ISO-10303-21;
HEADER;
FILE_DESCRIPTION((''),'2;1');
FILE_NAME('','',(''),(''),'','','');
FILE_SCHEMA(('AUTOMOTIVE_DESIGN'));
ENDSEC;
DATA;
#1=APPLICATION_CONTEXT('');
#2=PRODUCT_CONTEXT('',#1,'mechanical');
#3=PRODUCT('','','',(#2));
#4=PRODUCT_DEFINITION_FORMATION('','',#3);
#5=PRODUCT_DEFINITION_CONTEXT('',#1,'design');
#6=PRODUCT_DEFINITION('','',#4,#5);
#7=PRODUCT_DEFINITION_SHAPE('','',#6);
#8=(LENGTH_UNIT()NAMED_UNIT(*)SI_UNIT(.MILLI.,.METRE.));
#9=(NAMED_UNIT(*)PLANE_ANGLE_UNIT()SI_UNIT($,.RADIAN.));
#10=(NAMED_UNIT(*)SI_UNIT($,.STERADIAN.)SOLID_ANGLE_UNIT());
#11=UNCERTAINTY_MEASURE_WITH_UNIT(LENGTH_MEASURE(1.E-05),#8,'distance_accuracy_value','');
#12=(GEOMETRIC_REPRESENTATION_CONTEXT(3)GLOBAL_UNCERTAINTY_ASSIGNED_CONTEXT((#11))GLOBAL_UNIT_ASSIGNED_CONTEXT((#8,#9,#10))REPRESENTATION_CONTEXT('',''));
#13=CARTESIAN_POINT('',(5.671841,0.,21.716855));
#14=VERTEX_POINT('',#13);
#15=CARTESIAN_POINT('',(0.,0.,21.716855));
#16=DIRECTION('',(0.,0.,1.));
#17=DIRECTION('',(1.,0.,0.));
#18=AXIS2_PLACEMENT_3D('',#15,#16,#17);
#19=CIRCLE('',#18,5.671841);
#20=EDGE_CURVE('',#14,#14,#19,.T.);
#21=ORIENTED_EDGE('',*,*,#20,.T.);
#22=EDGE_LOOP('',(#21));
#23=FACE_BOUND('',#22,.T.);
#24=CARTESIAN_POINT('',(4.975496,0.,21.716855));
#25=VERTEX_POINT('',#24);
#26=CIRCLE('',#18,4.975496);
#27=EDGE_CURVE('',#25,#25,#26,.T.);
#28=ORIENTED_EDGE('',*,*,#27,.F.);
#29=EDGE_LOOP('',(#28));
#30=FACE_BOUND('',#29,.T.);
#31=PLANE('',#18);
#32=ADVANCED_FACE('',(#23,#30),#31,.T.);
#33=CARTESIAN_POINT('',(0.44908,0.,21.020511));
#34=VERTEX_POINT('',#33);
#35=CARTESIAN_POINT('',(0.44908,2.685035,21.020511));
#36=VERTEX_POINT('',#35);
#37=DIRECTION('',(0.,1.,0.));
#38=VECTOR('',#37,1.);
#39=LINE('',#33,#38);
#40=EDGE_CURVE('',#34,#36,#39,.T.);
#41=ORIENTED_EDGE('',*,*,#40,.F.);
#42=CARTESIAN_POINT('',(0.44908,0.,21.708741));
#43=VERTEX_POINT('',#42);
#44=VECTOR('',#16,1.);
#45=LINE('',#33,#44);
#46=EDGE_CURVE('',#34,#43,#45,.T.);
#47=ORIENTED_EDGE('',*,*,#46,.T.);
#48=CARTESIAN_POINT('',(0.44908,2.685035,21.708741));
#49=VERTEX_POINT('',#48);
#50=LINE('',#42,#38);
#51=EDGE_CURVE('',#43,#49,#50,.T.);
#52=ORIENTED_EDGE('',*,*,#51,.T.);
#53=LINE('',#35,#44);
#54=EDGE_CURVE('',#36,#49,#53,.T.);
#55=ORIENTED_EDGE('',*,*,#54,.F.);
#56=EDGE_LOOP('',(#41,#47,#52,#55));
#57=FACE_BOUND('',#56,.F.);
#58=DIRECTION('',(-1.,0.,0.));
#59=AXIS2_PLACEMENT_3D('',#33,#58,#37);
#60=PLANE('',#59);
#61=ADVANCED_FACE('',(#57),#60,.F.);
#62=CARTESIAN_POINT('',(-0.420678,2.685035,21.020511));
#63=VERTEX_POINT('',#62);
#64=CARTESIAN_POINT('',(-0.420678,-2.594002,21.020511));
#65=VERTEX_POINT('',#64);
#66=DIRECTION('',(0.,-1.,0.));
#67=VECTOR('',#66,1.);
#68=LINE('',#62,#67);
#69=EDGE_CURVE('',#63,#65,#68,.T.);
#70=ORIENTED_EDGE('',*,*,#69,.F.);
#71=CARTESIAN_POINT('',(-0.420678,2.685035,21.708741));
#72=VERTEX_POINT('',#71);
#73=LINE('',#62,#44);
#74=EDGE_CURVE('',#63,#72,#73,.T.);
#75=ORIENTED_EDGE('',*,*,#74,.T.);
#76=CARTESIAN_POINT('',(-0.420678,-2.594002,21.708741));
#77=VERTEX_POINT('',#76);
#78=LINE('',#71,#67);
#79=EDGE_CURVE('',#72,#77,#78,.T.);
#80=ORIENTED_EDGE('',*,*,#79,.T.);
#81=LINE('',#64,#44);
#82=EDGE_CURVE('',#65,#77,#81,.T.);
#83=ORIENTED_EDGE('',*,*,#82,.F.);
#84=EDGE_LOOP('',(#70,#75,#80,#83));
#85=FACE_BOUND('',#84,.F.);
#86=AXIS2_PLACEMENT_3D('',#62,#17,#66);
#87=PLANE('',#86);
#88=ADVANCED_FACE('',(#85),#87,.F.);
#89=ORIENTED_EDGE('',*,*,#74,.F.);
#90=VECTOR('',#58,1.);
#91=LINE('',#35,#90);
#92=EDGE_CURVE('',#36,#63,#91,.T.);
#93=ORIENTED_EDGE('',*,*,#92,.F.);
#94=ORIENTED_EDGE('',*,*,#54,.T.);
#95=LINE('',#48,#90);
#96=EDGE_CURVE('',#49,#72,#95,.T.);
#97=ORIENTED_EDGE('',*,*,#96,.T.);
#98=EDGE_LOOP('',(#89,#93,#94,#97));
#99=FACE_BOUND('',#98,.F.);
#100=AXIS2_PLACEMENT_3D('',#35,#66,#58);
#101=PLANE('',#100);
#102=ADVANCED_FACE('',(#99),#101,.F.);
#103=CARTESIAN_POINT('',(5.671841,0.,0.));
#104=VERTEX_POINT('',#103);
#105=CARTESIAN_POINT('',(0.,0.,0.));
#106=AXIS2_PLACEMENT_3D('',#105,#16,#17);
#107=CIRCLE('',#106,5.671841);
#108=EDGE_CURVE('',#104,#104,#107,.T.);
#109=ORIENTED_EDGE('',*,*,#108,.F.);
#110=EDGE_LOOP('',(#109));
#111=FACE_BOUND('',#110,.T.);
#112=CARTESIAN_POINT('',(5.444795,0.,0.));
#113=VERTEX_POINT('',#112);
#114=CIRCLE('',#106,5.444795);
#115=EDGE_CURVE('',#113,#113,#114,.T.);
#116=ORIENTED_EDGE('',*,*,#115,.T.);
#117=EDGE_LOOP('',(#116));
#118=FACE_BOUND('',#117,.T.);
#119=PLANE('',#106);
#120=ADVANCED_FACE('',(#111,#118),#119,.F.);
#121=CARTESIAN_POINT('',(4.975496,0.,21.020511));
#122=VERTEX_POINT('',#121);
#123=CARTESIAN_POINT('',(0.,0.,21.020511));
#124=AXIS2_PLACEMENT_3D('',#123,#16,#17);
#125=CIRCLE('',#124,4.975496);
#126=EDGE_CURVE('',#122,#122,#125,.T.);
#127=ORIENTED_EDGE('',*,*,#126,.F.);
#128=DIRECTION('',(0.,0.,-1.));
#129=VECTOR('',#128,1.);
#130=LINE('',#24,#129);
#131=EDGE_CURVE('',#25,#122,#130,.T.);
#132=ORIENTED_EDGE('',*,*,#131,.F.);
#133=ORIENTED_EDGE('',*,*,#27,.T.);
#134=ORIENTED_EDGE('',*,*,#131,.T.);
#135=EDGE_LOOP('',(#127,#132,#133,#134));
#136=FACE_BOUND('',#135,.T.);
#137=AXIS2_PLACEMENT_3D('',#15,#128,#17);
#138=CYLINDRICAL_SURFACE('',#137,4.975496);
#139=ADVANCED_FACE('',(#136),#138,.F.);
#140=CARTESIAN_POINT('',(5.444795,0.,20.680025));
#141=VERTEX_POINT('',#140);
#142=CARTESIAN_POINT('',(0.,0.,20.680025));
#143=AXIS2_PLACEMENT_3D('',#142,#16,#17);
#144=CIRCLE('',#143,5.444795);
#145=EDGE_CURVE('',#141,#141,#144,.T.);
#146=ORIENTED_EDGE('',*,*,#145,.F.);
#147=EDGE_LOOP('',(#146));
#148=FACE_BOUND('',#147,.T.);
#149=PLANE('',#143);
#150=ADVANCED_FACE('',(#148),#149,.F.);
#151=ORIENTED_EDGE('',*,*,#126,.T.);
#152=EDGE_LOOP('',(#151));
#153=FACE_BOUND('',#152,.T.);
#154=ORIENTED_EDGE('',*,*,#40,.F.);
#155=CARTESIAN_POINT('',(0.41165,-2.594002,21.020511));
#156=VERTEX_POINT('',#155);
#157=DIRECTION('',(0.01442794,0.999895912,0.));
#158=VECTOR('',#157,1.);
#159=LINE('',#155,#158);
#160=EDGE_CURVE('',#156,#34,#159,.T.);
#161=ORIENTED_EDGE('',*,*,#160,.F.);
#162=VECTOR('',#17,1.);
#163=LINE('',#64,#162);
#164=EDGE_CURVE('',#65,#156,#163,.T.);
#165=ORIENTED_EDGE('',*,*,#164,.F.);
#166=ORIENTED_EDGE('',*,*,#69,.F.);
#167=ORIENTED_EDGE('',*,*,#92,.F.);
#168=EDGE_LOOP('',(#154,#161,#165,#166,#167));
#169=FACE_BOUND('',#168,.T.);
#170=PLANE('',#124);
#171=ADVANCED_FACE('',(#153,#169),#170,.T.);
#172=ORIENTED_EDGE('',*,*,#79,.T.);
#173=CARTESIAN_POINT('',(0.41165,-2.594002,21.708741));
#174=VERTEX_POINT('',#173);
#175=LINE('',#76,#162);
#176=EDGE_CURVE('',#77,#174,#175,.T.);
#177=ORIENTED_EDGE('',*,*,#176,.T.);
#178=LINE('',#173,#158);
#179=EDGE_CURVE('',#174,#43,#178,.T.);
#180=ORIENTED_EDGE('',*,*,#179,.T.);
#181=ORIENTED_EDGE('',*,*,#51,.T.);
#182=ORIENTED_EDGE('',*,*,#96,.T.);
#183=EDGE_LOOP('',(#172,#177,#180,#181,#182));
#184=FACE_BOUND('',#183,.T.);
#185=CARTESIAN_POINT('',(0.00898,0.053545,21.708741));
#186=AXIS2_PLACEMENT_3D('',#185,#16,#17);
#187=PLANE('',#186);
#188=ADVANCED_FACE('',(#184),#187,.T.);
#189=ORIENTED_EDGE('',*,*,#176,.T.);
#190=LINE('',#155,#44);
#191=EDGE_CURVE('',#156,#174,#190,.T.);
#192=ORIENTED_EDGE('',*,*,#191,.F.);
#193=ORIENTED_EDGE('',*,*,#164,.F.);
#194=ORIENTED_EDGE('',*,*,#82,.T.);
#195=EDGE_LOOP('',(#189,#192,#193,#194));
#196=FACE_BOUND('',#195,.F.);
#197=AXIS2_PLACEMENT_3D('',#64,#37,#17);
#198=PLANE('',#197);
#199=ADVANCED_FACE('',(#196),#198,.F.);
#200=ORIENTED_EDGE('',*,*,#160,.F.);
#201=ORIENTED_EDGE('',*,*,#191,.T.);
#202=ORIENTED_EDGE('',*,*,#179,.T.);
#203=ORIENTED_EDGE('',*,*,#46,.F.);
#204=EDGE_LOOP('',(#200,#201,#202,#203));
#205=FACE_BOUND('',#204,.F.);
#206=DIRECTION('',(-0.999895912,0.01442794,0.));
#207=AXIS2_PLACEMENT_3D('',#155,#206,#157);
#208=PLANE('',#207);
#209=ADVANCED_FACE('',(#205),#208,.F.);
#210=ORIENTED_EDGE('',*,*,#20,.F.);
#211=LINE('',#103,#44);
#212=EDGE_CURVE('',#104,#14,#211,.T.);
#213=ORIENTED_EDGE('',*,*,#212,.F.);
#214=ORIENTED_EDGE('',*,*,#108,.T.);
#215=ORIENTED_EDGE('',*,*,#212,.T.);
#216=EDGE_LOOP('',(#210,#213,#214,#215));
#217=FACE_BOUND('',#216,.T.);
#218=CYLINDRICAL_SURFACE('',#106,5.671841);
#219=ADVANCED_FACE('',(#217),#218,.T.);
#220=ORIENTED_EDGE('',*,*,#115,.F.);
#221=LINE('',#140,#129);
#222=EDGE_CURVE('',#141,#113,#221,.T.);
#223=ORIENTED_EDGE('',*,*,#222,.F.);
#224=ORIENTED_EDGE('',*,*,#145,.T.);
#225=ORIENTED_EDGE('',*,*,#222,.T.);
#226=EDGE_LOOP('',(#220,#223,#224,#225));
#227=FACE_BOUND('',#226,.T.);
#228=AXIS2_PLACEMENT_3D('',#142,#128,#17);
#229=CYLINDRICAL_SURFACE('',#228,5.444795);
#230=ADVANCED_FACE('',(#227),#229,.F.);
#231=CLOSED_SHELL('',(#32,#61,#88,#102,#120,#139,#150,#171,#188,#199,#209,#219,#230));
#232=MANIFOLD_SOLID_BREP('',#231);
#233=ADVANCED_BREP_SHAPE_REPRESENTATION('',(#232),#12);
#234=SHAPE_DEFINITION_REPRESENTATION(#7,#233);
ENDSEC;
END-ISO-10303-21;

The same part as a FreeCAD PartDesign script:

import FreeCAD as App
import Part
import Sketcher

V = App.Vector
Q = App.Units.Quantity

doc = App.newDocument("Part")
body = doc.addObject("PartDesign::Body", "Body")

# Sketch on XZ plane
sketch1 = body.newObject("Sketcher::SketchObject", "Sketch")
sketch1.AttachmentSupport = (doc.getObject("XZ_Plane"), [""])
sketch1.MapMode = "FlatFace"
sketch1.addGeometry([
    Part.LineSegment(V(4.98, 21.72, 0), V(4.98, 21.02, 0)),  # 0
    Part.LineSegment(V(4.98, 21.02, 0), V(0, 21.02, 0)),  # 1
    Part.LineSegment(V(0, 21.02, 0), V(0, 20.68, 0)),  # 2
    Part.LineSegment(V(0, 20.68, 0), V(5.44, 20.68, 0)),  # 3
    Part.LineSegment(V(5.44, 20.68, 0), V(5.44, 0, 0)),  # 4
    Part.LineSegment(V(5.44, 0, 0), V(5.67, 0, 0)),  # 5
    Part.LineSegment(V(5.67, 0, 0), V(5.67, 21.72, 0)),  # 6
    Part.LineSegment(V(5.67, 21.72, 0), V(4.98, 21.72, 0)),  # 7
], False)
sketch1.addConstraint([
    Sketcher.Constraint("Coincident", 0, 2, 1, 1),
    Sketcher.Constraint("Coincident", 1, 2, 2, 1),
    Sketcher.Constraint("Coincident", 2, 2, 3, 1),
    Sketcher.Constraint("Coincident", 3, 2, 4, 1),
    Sketcher.Constraint("Coincident", 4, 2, 5, 1),
    Sketcher.Constraint("Coincident", 5, 2, 6, 1),
    Sketcher.Constraint("Coincident", 6, 2, 7, 1),
    Sketcher.Constraint("Coincident", 7, 2, 0, 1),
    Sketcher.Constraint("Vertical", 0),
    Sketcher.Constraint("Horizontal", 1),
    Sketcher.Constraint("Vertical", 2),
    Sketcher.Constraint("Horizontal", 3),
    Sketcher.Constraint("Vertical", 4),
    Sketcher.Constraint("Horizontal", 5),
    Sketcher.Constraint("Vertical", 6),
    Sketcher.Constraint("Horizontal", 7),
    Sketcher.Constraint("PointOnObject", 1, 2, -2),
    Sketcher.Constraint("PointOnObject", 4, 2, -1),
    Sketcher.Constraint("Equal", 7, 0),
    Sketcher.Constraint("DistanceX", 0, 2, 3, 2, Q("0.469299 mm")),
    Sketcher.Constraint("DistanceX", 1, 2, 1, 1, Q("4.975496 mm")),
    Sketcher.Constraint("DistanceX", 5, 1, 5, 2, Q("0.227046 mm")),
    Sketcher.Constraint("DistanceY", 2, 2, 2, 1, Q("0.340486 mm")),
    Sketcher.Constraint("DistanceY", 4, 2, 4, 1, Q("20.680025 mm")),
])
revolution = body.newObject("PartDesign::Revolution", "Revolution")
revolution.Profile = sketch1
revolution.ReferenceAxis = (sketch1, ["V_Axis"])
revolution.Angle = 360

# Sketch on XY plane
sketch2 = body.newObject("Sketcher::SketchObject", "Sketch001")
sketch2.AttachmentSupport = (doc.getObject("XY_Plane"), [""])
sketch2.MapMode = "FlatFace"
sketch2.AttachmentOffset = App.Placement(V(0, 0, 21.020511), App.Rotation())
sketch2.addGeometry([
    Part.LineSegment(V(0.4, -2.6, 0), V(0.4, 0, 0)),  # 0
    Part.LineSegment(V(0.4, 0, 0), V(0.4, 2.7, 0)),  # 1
    Part.LineSegment(V(0.4, 2.7, 0), V(-0.4, 2.7, 0)),  # 2
    Part.LineSegment(V(-0.4, 2.7, 0), V(-0.4, -2.6, 0)),  # 3
    Part.LineSegment(V(-0.4, -2.6, 0), V(0.4, -2.6, 0)),  # 4
], False)
sketch2.addConstraint([
    Sketcher.Constraint("Coincident", 0, 2, 1, 1),
    Sketcher.Constraint("Coincident", 1, 2, 2, 1),
    Sketcher.Constraint("Coincident", 2, 2, 3, 1),
    Sketcher.Constraint("Coincident", 3, 2, 4, 1),
    Sketcher.Constraint("Coincident", 4, 2, 0, 1),
    Sketcher.Constraint("Vertical", 1),
    Sketcher.Constraint("Horizontal", 2),
    Sketcher.Constraint("Vertical", 3),
    Sketcher.Constraint("Horizontal", 4),
    Sketcher.Constraint("PointOnObject", 0, 2, -1),
    Sketcher.Constraint("DistanceX", 2, 2, 2, 1, Q("0.869758 mm")),
    Sketcher.Constraint("DistanceX", 4, 1, 4, 2, Q("0.832328 mm")),
    Sketcher.Constraint("DistanceY", 1, 1, 1, 2, Q("2.685035 mm")),
    Sketcher.Constraint("DistanceY", 3, 2, 3, 1, Q("5.279037 mm")),
    Sketcher.Constraint("DistanceX", -1, 1, 0, 2, Q("0.44908 mm")),
])
pad1 = body.newObject("PartDesign::Pad", "Pad")
pad1.Profile = sketch2
pad1.Length = 0.68823

doc.recompute()
